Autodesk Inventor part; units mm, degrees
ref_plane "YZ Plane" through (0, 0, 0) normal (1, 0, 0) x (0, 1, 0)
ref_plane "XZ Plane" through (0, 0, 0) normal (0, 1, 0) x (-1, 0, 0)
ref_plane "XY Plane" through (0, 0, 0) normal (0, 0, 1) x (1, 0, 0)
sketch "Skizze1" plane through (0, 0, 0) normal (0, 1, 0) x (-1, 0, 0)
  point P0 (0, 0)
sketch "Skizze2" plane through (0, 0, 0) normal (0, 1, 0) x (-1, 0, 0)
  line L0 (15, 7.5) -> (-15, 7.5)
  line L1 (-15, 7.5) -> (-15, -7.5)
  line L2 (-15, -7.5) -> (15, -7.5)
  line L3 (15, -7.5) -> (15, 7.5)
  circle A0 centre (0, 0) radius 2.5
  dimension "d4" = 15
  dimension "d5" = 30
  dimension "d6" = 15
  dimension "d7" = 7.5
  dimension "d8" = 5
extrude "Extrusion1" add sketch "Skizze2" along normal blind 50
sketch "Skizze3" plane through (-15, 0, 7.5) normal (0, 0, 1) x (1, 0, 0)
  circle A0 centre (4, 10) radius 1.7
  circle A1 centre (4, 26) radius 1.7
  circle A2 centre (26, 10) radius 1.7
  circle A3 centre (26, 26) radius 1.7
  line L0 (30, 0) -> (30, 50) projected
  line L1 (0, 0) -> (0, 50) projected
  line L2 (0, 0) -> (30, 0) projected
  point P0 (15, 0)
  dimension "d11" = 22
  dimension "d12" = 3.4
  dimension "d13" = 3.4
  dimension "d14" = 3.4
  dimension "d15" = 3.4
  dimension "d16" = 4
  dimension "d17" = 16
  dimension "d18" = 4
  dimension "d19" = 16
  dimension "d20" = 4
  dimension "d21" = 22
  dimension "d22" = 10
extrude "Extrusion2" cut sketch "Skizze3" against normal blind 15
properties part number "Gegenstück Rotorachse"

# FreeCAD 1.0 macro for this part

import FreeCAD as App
import Part
import Sketcher
from FreeCAD import Vector
Q = App.Units.Quantity

doc = App.newDocument("Part")
params = doc.addObject("Spreadsheet::Sheet", "Params")
for row, (alias, value) in enumerate([
    ("sketch1_diameter", "5 mm"),
    ("sketch1_width", "30 mm"),
    ("sketch1_height", "15 mm"),
    ("pad1_length", "50 mm"),
    ("sketch2_diameter", "3.4 mm"),
    ("pocket1_length", "15 mm"),
], start=1):
    params.set(f"A{row}", alias)
    params.set(f"B{row}", "=" + value)
    params.setAlias(f"B{row}", alias)

body = doc.addObject("PartDesign::Body", "Body")

# Sketch on XZ plane
sketch1 = body.newObject("Sketcher::SketchObject", "Sketch")
sketch1.AttachmentSupport = (doc.getObject("XZ_Plane"), [""])
sketch1.MapMode = "FlatFace"
sketch1.addGeometry(Part.LineSegment(Vector(-15, -7.5, 0), Vector(-15, 7.5, 0)), False)
sketch1.addGeometry(Part.LineSegment(Vector(-15, 7.5, 0), Vector(15, 7.5, 0)), False)
sketch1.addGeometry(Part.LineSegment(Vector(15, 7.5, 0), Vector(15, -7.5, 0)), False)
sketch1.addGeometry(Part.LineSegment(Vector(15, -7.5, 0), Vector(-15, -7.5, 0)), False)
sketch1.addGeometry(Part.Circle(Vector(0, 0, 0), Vector(0, 0, 1), 2.5), False)
sketch1.addConstraint(Sketcher.Constraint("Coincident", 0, 2, 1, 1))
sketch1.addConstraint(Sketcher.Constraint("Coincident", 1, 2, 2, 1))
sketch1.addConstraint(Sketcher.Constraint("Coincident", 2, 2, 3, 1))
sketch1.addConstraint(Sketcher.Constraint("Coincident", 3, 2, 0, 1))
sketch1.addConstraint(Sketcher.Constraint("Vertical", 0))
sketch1.addConstraint(Sketcher.Constraint("Horizontal", 1))
sketch1.addConstraint(Sketcher.Constraint("Vertical", 2))
sketch1.addConstraint(Sketcher.Constraint("Horizontal", 3))
sketch1.addConstraint(Sketcher.Constraint("Coincident", 4, 3, -1, 1))
sketch1.addConstraint(Sketcher.Constraint("Symmetric", 0, 2, 2, 2, -1, 1))
sketch1.addConstraint(Sketcher.Constraint("Diameter", 4, Q("5 mm")))
sketch1.addConstraint(Sketcher.Constraint("DistanceX", 1, 1, 1, 2, Q("30 mm")))
sketch1.addConstraint(Sketcher.Constraint("DistanceY", 0, 1, 0, 2, Q("15 mm")))
sketch1.setExpression("Constraints[10]", "Params.sketch1_diameter")
sketch1.setExpression("Constraints[11]", "Params.sketch1_width")
sketch1.setExpression("Constraints[12]", "Params.sketch1_height")
pad1 = body.newObject("PartDesign::Pad", "Pad")
pad1.Profile = sketch1
pad1.setExpression("Length", "Params.pad1_length")
pad1.Reversed = True

# Sketch on XY plane
sketch2 = body.newObject("Sketcher::SketchObject", "Sketch001")
sketch2.AttachmentSupport = (doc.getObject("XY_Plane"), [""])
sketch2.MapMode = "FlatFace"
sketch2.AttachmentOffset = App.Placement(Vector(0, 0, 7.5), App.Rotation())
sketch2.addGeometry(Part.Circle(Vector(-11, 10, 0), Vector(0, 0, 1), 1.7), False)
sketch2.addGeometry(Part.Circle(Vector(-11, 26, 0), Vector(0, 0, 1), 1.7), False)
sketch2.addGeometry(Part.Circle(Vector(11, 10, 0), Vector(0, 0, 1), 1.7), False)
sketch2.addGeometry(Part.Circle(Vector(11, 26, 0), Vector(0, 0, 1), 1.7), False)
sketch2.addConstraint(Sketcher.Constraint("Equal", 0, 1))
sketch2.addConstraint(Sketcher.Constraint("Equal", 1, 2))
sketch2.addConstraint(Sketcher.Constraint("Equal", 2, 3))
sketch2.addConstraint(Sketcher.Constraint("Symmetric", 0, 3, 2, 3, -2))
sketch2.addConstraint(Sketcher.Constraint("Symmetric", 1, 3, 3, 3, -2))
sketch2.addConstraint(Sketcher.Constraint("Vertical", 0, 3, 1, 3))
sketch2.addConstraint(Sketcher.Constraint("Diameter", 0, Q("3.4 mm")))
sketch2.addConstraint(Sketcher.Constraint("DistanceY", -1, 1, 0, 3, Q("10 mm")))
sketch2.addConstraint(Sketcher.Constraint("DistanceY", 0, 3, 1, 3, Q("16 mm")))
sketch2.addConstraint(Sketcher.Constraint("DistanceX", 0, 3, 2, 3, Q("22 mm")))
sketch2.setExpression("Constraints[6]", "Params.sketch2_diameter")
pocket1 = body.newObject("PartDesign::Pocket", "Pocket")
pocket1.Profile = sketch2
pocket1.setExpression("Length", "Params.pocket1_length")

doc.recompute()
